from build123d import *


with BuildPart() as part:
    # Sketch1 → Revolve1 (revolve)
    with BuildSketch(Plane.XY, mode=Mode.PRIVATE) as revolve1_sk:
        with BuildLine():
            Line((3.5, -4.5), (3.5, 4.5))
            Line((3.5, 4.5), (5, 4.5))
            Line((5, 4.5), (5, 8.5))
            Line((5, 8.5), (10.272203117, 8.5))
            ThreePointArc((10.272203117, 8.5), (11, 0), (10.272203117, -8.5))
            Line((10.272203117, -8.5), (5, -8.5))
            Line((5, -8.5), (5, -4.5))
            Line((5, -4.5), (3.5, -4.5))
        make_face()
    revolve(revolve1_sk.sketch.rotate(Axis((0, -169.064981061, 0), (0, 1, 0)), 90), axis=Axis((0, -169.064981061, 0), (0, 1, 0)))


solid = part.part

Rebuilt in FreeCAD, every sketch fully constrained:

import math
import FreeCAD as App
import Part
import Sketcher
Q = App.Units.Quantity

doc = App.newDocument("Part")
body = doc.addObject("PartDesign::Body", "Body")

sketch1 = body.newObject("Sketcher::SketchObject", "Sketch")
sketch1.AttachmentSupport = (doc.getObject("XY_Plane"), [""])
sketch1.MapMode = "FlatFace"
sketch1.addGeometry(Part.LineSegment(App.Vector(3.5, 4.5, 0), App.Vector(3.5, -4.5, 0)), False)
sketch1.addGeometry(Part.LineSegment(App.Vector(3.5, -4.5, 0), App.Vector(5, -4.5, 0)), False)
sketch1.addGeometry(Part.LineSegment(App.Vector(5, -4.5, 0), App.Vector(5, -8.5, 0)), False)
sketch1.addGeometry(Part.LineSegment(App.Vector(5, -8.5, 0), App.Vector(10.3, -8.5, 0)), False)
sketch1.addGeometry(Part.ArcOfCircle(Part.Circle(App.Vector(-39, 0, 0), App.Vector(0, 0, 1), 50), math.radians(-9.79), math.radians(9.79)), False)
sketch1.addGeometry(Part.LineSegment(App.Vector(10.3, 8.5, 0), App.Vector(5, 8.5, 0)), False)
sketch1.addGeometry(Part.LineSegment(App.Vector(5, 8.5, 0), App.Vector(5, 4.5, 0)), False)
sketch1.addGeometry(Part.LineSegment(App.Vector(5, 4.5, 0), App.Vector(3.5, 4.5, 0)), False)
sketch1.addConstraint(Sketcher.Constraint("Coincident", 0, 2, 1, 1))
sketch1.addConstraint(Sketcher.Constraint("Coincident", 1, 2, 2, 1))
sketch1.addConstraint(Sketcher.Constraint("Coincident", 2, 2, 3, 1))
sketch1.addConstraint(Sketcher.Constraint("Coincident", 3, 2, 4, 1))
sketch1.addConstraint(Sketcher.Constraint("Coincident", 4, 2, 5, 1))
sketch1.addConstraint(Sketcher.Constraint("Coincident", 5, 2, 6, 1))
sketch1.addConstraint(Sketcher.Constraint("Coincident", 6, 2, 7, 1))
sketch1.addConstraint(Sketcher.Constraint("Coincident", 7, 2, 0, 1))
sketch1.addConstraint(Sketcher.Constraint("Vertical", 0))
sketch1.addConstraint(Sketcher.Constraint("Horizontal", 1))
sketch1.addConstraint(Sketcher.Constraint("Vertical", 2))
sketch1.addConstraint(Sketcher.Constraint("Horizontal", 3))
sketch1.addConstraint(Sketcher.Constraint("Horizontal", 5))
sketch1.addConstraint(Sketcher.Constraint("Vertical", 6))
sketch1.addConstraint(Sketcher.Constraint("Horizontal", 7))
sketch1.addConstraint(Sketcher.Constraint("Symmetric", 3, 2, 4, 2, -1))
sketch1.addConstraint(Sketcher.Constraint("Symmetric", 1, 2, 6, 2, -1))
sketch1.addConstraint(Sketcher.Constraint("Radius", 4, Q("50 mm")))
sketch1.addConstraint(Sketcher.Constraint("DistanceY", 0, 2, 0, 1, Q("9 mm")))
sketch1.addConstraint(Sketcher.Constraint("DistanceY", 2, 2, 2, 1, Q("4 mm")))
sketch1.addConstraint(Sketcher.Constraint("DistanceX", 1, 1, 1, 2, Q("1.5 mm")))
sketch1.addConstraint(Sketcher.Constraint("DistanceX", 4, 3, -1, 1, Q("39 mm")))
sketch1.addConstraint(Sketcher.Constraint("DistanceX", -1, 1, 1, 2, Q("5 mm")))
revolution = body.newObject("PartDesign::Revolution", "Revolution")
revolution.Profile = sketch1
revolution.ReferenceAxis = (sketch1, ["V_Axis"])
revolution.Angle = 360

doc.recompute()
